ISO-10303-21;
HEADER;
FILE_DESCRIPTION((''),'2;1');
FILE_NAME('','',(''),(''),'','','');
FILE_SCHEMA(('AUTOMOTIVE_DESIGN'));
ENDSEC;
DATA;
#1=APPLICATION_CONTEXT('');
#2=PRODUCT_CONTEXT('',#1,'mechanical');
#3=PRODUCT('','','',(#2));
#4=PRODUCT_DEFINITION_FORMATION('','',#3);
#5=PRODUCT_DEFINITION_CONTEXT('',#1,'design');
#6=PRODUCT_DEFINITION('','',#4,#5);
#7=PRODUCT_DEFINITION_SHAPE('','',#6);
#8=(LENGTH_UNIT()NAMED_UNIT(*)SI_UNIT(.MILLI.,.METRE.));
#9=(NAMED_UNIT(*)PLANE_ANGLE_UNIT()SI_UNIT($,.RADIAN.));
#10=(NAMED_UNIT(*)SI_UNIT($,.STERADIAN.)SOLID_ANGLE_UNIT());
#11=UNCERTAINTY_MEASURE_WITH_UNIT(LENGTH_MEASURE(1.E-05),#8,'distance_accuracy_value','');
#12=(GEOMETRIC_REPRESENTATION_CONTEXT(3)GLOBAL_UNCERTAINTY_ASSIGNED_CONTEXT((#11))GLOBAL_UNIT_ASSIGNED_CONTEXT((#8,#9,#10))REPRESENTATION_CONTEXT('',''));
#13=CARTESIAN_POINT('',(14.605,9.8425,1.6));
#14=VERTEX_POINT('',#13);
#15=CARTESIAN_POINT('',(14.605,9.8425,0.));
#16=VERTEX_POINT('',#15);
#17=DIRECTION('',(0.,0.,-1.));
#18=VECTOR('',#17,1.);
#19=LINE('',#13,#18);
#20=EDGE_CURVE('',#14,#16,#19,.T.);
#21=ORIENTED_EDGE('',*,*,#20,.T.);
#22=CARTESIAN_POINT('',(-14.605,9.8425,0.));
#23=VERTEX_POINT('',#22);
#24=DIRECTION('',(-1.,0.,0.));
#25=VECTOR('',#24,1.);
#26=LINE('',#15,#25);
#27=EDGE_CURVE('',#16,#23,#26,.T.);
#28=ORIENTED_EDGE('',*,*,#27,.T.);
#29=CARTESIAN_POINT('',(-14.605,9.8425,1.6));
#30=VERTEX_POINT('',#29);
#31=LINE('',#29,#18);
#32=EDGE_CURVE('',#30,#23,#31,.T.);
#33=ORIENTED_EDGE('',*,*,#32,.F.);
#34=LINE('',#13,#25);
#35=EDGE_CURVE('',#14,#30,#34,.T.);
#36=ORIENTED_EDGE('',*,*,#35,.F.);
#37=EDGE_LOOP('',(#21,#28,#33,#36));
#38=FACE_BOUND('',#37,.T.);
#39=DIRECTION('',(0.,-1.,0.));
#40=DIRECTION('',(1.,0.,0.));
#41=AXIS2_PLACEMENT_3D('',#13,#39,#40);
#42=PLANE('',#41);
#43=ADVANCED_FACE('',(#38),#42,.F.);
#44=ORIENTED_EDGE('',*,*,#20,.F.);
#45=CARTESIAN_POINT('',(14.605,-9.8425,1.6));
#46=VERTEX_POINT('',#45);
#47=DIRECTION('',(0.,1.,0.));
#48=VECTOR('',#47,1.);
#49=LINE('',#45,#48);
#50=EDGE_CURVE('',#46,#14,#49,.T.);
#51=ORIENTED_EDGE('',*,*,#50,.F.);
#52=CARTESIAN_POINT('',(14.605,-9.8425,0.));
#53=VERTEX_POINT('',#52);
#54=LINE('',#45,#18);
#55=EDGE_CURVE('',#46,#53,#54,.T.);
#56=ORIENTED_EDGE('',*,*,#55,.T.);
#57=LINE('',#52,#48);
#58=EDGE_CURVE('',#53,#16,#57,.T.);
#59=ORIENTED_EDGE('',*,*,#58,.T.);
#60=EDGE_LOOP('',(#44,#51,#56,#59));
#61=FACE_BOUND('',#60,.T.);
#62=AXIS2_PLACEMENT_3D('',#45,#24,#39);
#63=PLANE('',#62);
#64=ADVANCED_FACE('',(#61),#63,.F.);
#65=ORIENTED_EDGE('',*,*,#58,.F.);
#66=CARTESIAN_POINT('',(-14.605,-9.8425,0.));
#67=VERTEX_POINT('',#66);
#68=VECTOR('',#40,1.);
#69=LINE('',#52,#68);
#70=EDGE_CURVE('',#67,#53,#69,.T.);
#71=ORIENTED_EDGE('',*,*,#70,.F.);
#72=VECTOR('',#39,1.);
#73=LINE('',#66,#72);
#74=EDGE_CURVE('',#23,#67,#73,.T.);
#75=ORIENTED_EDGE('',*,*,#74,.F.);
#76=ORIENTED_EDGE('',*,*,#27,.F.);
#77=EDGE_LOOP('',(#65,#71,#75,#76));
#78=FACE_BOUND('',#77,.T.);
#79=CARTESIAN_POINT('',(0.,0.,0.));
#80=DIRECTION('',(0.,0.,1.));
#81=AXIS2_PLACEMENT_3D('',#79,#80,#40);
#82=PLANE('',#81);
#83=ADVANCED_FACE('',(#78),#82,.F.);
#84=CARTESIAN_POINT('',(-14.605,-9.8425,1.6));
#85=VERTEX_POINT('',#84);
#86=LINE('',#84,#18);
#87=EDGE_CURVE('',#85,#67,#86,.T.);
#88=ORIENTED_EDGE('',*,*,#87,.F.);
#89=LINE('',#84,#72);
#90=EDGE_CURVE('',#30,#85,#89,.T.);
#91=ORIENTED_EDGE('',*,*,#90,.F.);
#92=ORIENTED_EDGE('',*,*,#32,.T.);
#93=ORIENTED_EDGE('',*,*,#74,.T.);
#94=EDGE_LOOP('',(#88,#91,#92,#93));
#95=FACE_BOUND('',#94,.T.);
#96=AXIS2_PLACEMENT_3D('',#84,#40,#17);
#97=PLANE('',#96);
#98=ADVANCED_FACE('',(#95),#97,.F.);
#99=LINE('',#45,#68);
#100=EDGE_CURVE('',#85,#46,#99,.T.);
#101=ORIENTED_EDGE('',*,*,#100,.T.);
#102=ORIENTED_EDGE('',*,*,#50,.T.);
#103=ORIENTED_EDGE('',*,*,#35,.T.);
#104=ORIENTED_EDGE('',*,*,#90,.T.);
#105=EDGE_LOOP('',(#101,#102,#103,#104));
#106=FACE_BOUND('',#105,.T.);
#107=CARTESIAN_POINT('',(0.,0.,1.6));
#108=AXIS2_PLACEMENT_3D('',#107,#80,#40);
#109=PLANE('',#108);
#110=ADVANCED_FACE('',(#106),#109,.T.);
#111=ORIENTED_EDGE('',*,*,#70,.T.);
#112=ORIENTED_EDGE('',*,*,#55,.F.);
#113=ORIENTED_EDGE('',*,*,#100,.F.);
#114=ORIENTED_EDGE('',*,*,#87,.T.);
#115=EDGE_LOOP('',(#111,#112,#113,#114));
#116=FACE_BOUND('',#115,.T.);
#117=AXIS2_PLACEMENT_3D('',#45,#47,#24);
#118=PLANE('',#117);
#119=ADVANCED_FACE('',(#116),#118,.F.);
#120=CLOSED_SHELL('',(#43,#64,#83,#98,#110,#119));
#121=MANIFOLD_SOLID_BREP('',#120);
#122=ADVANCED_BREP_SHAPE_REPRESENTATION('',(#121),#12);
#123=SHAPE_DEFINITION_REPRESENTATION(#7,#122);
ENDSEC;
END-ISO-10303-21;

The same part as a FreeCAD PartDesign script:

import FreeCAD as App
import Part
import Sketcher
from FreeCAD import Vector
Q = App.Units.Quantity


def add_polygon(sketch, points):
    """Adds a closed chain of lines whose ends are joined by coincident constraints."""
    first, n = sketch.GeometryCount, len(points)
    for a, b in zip(points, points[1:] + points[:1]):
        sketch.addGeometry(Part.LineSegment(App.Vector(*a, 0), App.Vector(*b, 0)), False)
    for i in range(n):
        sketch.addConstraint(Sketcher.Constraint("Coincident", first + i, 2, first + (i + 1) % n, 1))

doc = App.newDocument("Part")
body = doc.addObject("PartDesign::Body", "Body")

sketch1 = body.newObject("Sketcher::SketchObject", "Sketch")
sketch1.AttachmentSupport = (doc.getObject("XY_Plane"), [""])
sketch1.MapMode = "FlatFace"
add_polygon(sketch1, [(-14.605, 9.8425), (-14.605, -9.8425), (14.605, -9.8425), (14.605, 9.8425)])
sketch1.addConstraint(Sketcher.Constraint("Vertical", 0))
sketch1.addConstraint(Sketcher.Constraint("Horizontal", 1))
sketch1.addConstraint(Sketcher.Constraint("Vertical", 2))
sketch1.addConstraint(Sketcher.Constraint("Horizontal", 3))
sketch1.addConstraint(Sketcher.Constraint("Symmetric", 0, 2, 2, 2, -1, 1))
sketch1.addConstraint(Sketcher.Constraint("DistanceX", 1, 1, 1, 2, Q("1.15 in")))
sketch1.addConstraint(Sketcher.Constraint("DistanceY", 0, 2, 0, 1, Q("0.775 in")))
pad1 = body.newObject("PartDesign::Pad", "Pad")
pad1.Profile = sketch1
pad1.Length = 1.6

doc.recompute()
